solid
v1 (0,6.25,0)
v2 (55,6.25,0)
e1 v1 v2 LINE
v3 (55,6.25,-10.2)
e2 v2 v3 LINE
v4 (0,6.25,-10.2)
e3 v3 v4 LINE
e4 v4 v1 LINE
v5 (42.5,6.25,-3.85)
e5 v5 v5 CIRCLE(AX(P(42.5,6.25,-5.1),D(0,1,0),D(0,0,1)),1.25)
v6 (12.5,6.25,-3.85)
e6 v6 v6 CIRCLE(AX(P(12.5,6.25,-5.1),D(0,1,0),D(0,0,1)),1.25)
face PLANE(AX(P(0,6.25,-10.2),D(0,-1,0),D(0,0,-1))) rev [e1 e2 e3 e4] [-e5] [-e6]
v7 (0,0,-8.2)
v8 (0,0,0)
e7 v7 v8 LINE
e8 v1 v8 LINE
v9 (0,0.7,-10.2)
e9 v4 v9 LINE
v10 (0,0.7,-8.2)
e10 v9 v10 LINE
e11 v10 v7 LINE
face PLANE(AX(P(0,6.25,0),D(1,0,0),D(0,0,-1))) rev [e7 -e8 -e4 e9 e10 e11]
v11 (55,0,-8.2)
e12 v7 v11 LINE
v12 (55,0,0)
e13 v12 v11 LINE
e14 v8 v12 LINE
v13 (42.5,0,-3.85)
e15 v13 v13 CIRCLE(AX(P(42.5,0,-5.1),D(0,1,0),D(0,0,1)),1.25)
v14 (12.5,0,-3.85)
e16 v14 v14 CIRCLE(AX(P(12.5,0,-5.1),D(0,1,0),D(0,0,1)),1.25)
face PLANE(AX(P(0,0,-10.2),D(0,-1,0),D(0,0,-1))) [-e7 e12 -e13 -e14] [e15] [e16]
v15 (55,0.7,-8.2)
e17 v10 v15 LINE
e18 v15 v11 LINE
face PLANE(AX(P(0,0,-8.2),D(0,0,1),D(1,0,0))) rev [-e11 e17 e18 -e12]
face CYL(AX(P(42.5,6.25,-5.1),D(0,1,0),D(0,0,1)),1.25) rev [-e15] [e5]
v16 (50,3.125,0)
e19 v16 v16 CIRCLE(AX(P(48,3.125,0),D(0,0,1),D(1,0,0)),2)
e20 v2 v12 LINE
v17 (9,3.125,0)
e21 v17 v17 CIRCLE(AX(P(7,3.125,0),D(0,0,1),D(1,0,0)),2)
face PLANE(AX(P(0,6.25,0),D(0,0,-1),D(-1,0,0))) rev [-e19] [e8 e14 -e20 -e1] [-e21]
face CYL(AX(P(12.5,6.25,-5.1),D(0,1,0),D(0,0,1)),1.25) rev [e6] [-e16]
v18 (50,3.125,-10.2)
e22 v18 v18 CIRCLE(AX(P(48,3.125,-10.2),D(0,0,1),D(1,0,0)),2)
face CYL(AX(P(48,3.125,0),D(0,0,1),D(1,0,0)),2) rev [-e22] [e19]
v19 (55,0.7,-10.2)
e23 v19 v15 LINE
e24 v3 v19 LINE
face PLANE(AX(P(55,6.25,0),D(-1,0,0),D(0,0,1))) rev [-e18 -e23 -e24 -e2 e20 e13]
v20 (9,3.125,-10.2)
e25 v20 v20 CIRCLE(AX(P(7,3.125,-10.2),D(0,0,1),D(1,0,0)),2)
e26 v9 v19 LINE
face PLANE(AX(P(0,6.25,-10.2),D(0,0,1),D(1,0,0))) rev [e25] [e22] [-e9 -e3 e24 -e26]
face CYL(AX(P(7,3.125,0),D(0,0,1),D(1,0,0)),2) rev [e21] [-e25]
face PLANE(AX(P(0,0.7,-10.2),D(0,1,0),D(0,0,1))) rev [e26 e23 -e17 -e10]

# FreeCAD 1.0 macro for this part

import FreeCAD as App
import Part
import Sketcher
Q = App.Units.Quantity


def add_polygon(sketch, points):
    """Adds a closed chain of lines whose ends are joined by coincident constraints."""
    first, n = sketch.GeometryCount, len(points)
    for a, b in zip(points, points[1:] + points[:1]):
        sketch.addGeometry(Part.LineSegment(App.Vector(*a, 0), App.Vector(*b, 0)), False)
    for i in range(n):
        sketch.addConstraint(Sketcher.Constraint("Coincident", first + i, 2, first + (i + 1) % n, 1))

doc = App.newDocument("Part")
body = doc.addObject("PartDesign::Body", "Body")

# Sketch on XZ plane
sketch1 = body.newObject("Sketcher::SketchObject", "Sketch")
sketch1.AttachmentSupport = (doc.getObject("XZ_Plane"), [""])
sketch1.MapMode = "FlatFace"
add_polygon(sketch1, [(0, -10), (0, 0), (55, 0), (55, -10)])  # lines 0-3
sketch1.addConstraint([
    Sketcher.Constraint("Vertical", 0),
    Sketcher.Constraint("Horizontal", 1),
    Sketcher.Constraint("Vertical", 2),
    Sketcher.Constraint("Horizontal", 3),
    Sketcher.Constraint("Coincident", 0, 2, -1, 1),
    Sketcher.Constraint("DistanceX", 1, 1, 1, 2, Q("55 mm")),
    Sketcher.Constraint("DistanceY", 0, 1, 0, 2, Q("10.2 mm")),
])
pad1 = body.newObject("PartDesign::Pad", "Pad")
pad1.Profile = sketch1
pad1.Length = 6.25
pad1.Reversed = True

# Sketch on XY plane
sketch2 = body.newObject("Sketcher::SketchObject", "Sketch001")
sketch2.AttachmentSupport = (doc.getObject("XY_Plane"), [""])
sketch2.MapMode = "FlatFace"
sketch2.addGeometry([
    Part.Circle(App.Vector(7, 3.1, 0), App.Vector(0, 0, 1), 2),
    Part.Circle(App.Vector(48, 3.1, 0), App.Vector(0, 0, 1), 2),
], False)
sketch2.addConstraint([
    Sketcher.Constraint("Equal", 0, 1),
    Sketcher.Constraint("Horizontal", 0, 3, 1, 3),
    Sketcher.Constraint("Diameter", 0, Q("4 mm")),
    Sketcher.Constraint("DistanceX", -1, 1, 0, 3, Q("7 mm")),
    Sketcher.Constraint("DistanceX", -1, 1, 1, 3, Q("48 mm")),
    Sketcher.Constraint("DistanceY", -1, 1, 0, 3, Q("3.125 mm")),
])
doc.recompute()
hole = body.newObject("PartDesign::Hole", "Hole")
hole.Profile = sketch2
hole.ThreadType = "None"
hole.Diameter = 4
hole.DepthType = "ThroughAll"

# Sketch on XZ plane
sketch3 = body.newObject("Sketcher::SketchObject", "Sketch002")
sketch3.AttachmentSupport = (doc.getObject("XZ_Plane"), [""])
sketch3.MapMode = "FlatFace"
sketch3.AttachmentOffset = App.Placement(App.Vector(0, 0, -6.25), App.Rotation())
sketch3.addGeometry([
    Part.Circle(App.Vector(12.5, -5.1, 0), App.Vector(0, 0, 1), 1.2),
    Part.Circle(App.Vector(42.5, -5.1, 0), App.Vector(0, 0, 1), 1.2),
], False)
sketch3.addConstraint([
    Sketcher.Constraint("Equal", 0, 1),
    Sketcher.Constraint("Horizontal", 0, 3, 1, 3),
    Sketcher.Constraint("Diameter", 0, Q("2.5 mm")),
    Sketcher.Constraint("DistanceX", 0, 3, 1, 3, Q("30 mm")),
    Sketcher.Constraint("DistanceX", -1, 1, 0, 3, Q("12.5 mm")),
    Sketcher.Constraint("DistanceY", 0, 3, -1, 1, Q("5.1 mm")),
])
doc.recompute()
hole2 = body.newObject("PartDesign::Hole", "Hole001")
hole2.Profile = sketch3
hole2.ThreadType = "None"
hole2.Diameter = 2.5
hole2.DepthType = "ThroughAll"
hole2.Reversed = True

# Sketch on YZ plane
sketch4 = body.newObject("Sketcher::SketchObject", "Sketch003")
sketch4.AttachmentSupport = (doc.getObject("YZ_Plane"), [""])
sketch4.MapMode = "FlatFace"
sketch4.AttachmentOffset = App.Placement(App.Vector(0, 0, 55), App.Rotation())
add_polygon(sketch4, [(0.7, -8.2), (0, -8.2), (0, -10.2), (0.7, -10.2)])  # lines 0-3
sketch4.addConstraint([
    Sketcher.Constraint("Horizontal", 0),
    Sketcher.Constraint("Vertical", 1),
    Sketcher.Constraint("Horizontal", 2),
    Sketcher.Constraint("Vertical", 3),
    Sketcher.Constraint("PointOnObject", 0, 2, -2),
    Sketcher.Constraint("DistanceY", 1, 2, 1, 1, Q("2 mm")),
    Sketcher.Constraint("DistanceX", 0, 2, 0, 1, Q("0.7 mm")),
    Sketcher.Constraint("DistanceY", 0, 2, -1, 1, Q("8.2 mm")),
])
pocket1 = body.newObject("PartDesign::Pocket", "Pocket")
pocket1.Profile = sketch4
pocket1.Type = "ThroughAll"

doc.recompute()
